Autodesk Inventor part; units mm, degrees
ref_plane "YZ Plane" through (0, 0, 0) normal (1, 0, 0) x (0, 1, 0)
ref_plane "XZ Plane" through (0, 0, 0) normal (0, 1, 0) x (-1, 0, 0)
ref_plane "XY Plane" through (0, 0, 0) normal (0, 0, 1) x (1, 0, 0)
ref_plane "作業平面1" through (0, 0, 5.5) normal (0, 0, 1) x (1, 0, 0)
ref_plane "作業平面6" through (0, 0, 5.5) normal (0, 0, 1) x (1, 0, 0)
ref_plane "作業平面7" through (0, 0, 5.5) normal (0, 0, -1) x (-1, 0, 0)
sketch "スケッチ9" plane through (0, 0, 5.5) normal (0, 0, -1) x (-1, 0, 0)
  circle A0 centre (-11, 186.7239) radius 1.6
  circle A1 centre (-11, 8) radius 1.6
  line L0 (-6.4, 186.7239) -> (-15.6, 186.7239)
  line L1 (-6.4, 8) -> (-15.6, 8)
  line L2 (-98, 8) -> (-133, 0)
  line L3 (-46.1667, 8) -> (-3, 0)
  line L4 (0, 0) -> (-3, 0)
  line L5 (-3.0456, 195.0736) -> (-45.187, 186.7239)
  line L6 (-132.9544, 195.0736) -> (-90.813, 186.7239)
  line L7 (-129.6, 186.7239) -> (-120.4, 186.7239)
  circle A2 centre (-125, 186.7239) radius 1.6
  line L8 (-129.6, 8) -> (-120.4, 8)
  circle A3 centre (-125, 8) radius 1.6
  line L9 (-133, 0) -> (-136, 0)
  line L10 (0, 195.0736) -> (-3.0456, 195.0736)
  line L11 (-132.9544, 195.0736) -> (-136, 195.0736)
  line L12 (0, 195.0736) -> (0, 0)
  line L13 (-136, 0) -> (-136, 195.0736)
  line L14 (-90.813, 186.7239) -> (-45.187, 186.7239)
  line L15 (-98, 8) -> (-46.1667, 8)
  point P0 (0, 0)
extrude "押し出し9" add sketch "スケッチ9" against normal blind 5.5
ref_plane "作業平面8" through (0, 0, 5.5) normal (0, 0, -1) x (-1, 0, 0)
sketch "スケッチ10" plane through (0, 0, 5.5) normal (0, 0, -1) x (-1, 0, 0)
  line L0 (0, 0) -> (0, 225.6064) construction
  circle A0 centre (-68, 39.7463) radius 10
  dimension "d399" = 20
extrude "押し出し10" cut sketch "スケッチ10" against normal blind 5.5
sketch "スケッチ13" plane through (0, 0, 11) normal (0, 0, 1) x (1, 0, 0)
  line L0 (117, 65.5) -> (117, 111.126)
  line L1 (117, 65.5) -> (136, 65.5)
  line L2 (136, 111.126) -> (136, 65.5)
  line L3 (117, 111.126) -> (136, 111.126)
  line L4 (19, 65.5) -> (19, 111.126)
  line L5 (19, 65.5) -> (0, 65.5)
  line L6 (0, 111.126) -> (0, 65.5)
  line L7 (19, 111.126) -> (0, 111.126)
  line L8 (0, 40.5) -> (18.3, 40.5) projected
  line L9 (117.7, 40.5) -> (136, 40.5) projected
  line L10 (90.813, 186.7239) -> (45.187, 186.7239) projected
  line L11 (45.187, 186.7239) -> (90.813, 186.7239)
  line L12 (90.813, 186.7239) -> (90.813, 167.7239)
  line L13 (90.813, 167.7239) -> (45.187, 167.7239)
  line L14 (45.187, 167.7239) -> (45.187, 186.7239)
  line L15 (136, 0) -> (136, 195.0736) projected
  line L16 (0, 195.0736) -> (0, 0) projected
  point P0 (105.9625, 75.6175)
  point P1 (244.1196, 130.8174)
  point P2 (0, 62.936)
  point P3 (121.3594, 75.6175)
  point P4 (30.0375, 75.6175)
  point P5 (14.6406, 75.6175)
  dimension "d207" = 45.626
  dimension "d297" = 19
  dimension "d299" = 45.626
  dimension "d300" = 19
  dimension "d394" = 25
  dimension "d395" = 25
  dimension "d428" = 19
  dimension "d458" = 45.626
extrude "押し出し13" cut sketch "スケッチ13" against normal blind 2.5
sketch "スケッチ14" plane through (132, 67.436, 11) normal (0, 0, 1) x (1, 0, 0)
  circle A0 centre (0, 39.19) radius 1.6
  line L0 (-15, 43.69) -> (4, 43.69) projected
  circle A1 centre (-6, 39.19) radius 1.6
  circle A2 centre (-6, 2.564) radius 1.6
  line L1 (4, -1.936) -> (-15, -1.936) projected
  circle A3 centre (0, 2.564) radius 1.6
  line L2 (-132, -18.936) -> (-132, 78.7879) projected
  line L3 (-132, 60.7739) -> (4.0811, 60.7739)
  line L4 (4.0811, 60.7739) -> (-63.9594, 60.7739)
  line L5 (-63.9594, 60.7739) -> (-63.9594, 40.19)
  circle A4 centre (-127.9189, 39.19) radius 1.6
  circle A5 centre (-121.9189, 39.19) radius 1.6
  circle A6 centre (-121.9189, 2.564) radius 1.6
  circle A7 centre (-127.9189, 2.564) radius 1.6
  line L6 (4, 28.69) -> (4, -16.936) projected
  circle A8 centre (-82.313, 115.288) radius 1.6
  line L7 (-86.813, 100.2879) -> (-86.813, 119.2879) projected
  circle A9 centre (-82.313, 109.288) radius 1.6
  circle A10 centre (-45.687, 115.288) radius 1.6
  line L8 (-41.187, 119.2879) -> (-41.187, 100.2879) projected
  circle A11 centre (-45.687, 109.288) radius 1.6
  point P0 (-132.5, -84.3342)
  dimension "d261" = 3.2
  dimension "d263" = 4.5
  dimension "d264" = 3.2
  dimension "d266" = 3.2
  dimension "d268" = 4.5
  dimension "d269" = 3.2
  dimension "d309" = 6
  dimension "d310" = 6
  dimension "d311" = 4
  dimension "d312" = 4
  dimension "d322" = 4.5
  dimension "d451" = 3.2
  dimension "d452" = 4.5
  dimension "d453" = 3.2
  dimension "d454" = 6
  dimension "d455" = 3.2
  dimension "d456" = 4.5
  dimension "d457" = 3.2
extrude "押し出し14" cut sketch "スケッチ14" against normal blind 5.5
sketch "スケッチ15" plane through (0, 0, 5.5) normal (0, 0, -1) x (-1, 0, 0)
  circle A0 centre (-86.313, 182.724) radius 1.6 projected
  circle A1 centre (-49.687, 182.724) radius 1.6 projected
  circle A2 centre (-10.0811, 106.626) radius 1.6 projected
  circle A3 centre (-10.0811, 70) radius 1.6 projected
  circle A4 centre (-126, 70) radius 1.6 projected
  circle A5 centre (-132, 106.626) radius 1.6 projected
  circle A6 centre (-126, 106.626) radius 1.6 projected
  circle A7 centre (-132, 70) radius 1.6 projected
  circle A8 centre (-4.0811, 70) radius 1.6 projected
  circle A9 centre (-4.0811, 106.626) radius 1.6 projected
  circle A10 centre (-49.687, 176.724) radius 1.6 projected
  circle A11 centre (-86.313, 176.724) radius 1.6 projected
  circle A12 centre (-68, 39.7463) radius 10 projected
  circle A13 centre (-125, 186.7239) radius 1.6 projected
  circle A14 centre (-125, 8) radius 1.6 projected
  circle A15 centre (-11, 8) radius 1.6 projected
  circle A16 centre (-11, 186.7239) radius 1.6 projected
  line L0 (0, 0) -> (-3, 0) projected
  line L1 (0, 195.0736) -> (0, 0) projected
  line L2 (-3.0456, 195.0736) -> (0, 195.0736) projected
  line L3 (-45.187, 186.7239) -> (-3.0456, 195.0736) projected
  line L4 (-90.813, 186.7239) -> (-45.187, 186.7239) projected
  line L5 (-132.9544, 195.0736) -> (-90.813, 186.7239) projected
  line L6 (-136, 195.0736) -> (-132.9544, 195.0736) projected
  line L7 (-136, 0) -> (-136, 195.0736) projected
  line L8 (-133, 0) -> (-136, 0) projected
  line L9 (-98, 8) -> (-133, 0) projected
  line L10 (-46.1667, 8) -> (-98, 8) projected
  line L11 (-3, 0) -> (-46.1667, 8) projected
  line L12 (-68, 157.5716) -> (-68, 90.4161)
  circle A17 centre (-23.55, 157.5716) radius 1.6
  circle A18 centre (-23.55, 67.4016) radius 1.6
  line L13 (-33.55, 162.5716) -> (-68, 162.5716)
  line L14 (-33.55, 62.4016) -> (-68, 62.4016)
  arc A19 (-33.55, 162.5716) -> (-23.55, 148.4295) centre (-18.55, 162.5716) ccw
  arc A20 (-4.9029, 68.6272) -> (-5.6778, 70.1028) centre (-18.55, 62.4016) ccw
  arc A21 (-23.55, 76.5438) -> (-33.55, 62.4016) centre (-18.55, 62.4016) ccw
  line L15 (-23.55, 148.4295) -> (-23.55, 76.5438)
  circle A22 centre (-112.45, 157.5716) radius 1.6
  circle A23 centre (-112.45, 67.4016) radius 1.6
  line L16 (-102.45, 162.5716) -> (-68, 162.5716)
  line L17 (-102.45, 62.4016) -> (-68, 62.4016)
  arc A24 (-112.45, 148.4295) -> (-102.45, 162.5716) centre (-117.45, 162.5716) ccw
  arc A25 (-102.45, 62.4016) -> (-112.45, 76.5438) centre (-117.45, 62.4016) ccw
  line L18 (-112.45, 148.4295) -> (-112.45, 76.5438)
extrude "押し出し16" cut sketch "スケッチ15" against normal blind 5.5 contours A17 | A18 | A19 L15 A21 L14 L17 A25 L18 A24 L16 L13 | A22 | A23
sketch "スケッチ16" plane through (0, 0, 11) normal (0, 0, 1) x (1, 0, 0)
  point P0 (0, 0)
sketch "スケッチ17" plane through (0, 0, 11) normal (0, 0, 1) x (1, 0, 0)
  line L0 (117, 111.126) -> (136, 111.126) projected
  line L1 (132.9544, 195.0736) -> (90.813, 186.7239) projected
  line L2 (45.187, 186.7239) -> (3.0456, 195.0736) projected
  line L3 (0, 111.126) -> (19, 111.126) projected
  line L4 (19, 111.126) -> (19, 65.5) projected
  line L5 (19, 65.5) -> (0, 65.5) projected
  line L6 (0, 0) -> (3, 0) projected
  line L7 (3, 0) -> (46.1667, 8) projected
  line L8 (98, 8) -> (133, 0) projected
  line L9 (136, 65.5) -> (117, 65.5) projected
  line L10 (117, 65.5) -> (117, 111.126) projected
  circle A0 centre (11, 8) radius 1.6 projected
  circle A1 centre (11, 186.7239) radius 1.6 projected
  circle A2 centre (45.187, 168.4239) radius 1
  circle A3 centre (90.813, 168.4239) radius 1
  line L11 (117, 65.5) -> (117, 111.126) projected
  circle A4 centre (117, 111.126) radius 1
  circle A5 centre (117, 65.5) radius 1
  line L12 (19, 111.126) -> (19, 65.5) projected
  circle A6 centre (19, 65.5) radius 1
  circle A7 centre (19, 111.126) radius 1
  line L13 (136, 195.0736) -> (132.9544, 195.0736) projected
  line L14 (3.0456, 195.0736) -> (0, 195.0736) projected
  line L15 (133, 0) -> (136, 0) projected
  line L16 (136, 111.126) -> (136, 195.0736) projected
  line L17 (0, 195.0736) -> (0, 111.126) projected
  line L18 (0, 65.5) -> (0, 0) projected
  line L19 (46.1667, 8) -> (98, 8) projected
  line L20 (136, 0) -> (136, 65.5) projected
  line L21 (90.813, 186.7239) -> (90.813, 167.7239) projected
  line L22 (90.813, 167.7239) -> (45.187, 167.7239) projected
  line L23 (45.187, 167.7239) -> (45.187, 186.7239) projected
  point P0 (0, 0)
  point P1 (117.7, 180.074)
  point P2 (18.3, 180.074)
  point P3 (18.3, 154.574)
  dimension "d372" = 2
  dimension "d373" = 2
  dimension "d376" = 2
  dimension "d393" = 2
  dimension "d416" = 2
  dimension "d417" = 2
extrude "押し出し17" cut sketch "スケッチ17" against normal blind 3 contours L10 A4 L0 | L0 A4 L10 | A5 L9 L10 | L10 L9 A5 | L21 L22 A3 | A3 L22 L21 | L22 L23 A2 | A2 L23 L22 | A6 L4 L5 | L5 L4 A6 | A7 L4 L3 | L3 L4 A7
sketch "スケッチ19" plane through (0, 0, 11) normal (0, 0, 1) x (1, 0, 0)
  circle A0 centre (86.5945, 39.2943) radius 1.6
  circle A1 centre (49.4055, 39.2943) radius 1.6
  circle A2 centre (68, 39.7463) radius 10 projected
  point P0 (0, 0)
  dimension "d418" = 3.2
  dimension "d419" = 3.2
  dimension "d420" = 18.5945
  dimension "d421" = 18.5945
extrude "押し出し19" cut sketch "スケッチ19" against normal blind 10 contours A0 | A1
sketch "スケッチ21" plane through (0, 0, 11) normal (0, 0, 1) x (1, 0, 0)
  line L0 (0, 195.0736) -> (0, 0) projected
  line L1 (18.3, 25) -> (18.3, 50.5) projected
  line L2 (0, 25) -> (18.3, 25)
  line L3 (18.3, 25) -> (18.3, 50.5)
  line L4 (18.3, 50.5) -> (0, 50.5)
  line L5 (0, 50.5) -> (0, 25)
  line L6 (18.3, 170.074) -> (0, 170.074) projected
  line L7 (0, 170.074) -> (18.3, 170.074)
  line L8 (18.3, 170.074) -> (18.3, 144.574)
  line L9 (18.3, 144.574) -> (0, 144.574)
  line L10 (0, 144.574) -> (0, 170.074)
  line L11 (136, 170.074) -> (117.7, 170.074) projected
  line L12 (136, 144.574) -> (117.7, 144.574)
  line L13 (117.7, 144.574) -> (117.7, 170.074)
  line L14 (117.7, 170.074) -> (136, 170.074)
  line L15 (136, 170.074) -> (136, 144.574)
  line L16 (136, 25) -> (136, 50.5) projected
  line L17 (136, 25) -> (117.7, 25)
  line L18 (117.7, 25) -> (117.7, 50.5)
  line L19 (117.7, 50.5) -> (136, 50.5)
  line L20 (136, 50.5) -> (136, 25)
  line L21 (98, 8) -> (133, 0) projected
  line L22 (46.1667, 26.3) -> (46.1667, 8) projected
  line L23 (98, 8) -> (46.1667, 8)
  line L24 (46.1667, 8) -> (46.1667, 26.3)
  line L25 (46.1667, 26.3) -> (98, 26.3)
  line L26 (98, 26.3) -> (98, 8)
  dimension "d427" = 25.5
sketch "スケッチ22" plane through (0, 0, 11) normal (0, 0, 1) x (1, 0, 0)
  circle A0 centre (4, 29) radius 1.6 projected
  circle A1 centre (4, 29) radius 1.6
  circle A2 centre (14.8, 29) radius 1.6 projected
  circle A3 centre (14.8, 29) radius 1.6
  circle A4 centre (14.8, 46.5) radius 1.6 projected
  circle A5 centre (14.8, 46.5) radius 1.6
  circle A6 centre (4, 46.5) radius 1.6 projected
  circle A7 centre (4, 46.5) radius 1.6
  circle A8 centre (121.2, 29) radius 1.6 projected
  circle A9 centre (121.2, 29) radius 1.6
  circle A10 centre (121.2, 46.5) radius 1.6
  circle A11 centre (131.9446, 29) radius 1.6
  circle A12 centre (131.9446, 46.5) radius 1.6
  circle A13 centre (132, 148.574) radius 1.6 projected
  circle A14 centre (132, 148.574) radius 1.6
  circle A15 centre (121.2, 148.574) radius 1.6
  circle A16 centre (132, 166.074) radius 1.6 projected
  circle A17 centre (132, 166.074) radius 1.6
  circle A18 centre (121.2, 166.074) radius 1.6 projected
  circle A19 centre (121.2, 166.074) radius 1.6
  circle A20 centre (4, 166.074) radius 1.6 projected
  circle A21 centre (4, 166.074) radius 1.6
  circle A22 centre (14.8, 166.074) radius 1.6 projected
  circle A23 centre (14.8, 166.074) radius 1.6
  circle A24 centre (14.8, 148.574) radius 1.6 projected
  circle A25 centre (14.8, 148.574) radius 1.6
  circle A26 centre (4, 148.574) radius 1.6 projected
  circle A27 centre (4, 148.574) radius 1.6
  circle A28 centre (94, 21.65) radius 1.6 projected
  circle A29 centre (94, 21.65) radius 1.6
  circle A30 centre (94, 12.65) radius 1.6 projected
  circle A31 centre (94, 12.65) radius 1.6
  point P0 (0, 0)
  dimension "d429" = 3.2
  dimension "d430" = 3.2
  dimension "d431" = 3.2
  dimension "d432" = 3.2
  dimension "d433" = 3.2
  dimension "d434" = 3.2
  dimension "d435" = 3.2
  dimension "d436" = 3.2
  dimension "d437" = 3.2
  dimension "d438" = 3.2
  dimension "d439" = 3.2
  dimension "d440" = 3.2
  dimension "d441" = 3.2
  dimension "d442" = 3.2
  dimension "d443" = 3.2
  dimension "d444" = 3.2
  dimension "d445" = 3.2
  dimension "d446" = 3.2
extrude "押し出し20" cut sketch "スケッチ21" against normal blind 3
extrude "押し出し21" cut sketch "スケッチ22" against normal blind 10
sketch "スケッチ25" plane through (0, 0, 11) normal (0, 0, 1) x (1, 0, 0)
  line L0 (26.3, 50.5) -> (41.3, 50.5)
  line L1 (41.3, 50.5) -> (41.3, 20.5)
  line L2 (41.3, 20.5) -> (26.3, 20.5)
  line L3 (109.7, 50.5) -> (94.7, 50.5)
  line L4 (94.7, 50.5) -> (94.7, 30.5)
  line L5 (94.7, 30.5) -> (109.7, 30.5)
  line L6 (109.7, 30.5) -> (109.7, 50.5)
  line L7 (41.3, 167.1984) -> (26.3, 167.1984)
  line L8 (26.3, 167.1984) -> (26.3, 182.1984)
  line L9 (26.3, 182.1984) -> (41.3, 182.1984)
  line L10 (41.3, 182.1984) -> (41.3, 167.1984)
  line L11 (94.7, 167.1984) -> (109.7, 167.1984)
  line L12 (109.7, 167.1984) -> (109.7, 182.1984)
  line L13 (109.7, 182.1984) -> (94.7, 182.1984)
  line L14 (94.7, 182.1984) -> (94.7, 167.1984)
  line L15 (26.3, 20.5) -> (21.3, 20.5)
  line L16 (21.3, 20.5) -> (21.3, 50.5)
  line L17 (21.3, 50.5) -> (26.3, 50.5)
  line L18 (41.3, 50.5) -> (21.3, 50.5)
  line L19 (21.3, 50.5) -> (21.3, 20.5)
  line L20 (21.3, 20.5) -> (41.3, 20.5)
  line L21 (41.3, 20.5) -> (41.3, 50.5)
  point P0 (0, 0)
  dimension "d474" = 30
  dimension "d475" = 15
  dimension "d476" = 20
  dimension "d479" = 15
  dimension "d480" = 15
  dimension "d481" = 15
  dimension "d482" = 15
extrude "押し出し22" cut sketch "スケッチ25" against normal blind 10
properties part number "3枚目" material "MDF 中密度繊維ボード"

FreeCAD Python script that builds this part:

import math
import FreeCAD as App
import Part
import Sketcher
Q = App.Units.Quantity


def add_polygon(sketch, points):
    """Adds a closed chain of lines whose ends are joined by coincident constraints."""
    first, n = sketch.GeometryCount, len(points)
    for a, b in zip(points, points[1:] + points[:1]):
        sketch.addGeometry(Part.LineSegment(App.Vector(*a, 0), App.Vector(*b, 0)), False)
    for i in range(n):
        sketch.addConstraint(Sketcher.Constraint("Coincident", first + i, 2, first + (i + 1) % n, 1))

doc = App.newDocument("Part")
body = doc.addObject("PartDesign::Body", "Body")

sketch1 = body.newObject("Sketcher::SketchObject", "Sketch")
sketch1.AttachmentSupport = (doc.getObject("XY_Plane"), [""])
sketch1.MapMode = "FlatFace"
sketch1.AttachmentOffset = App.Placement(App.Vector(0, 0, 5.5), App.Rotation())
add_polygon(sketch1, [(133, 0), (98, 8), (46.2, 8), (3, 0), (0, 0), (0, 195.1), (3, 195.1), (45.2, 186.7), (90.8, 186.7), (133, 195.1), (136, 195.1), (136, 0)])
sketch1.addGeometry(Part.Circle(App.Vector(125, 8, 0), App.Vector(0, 0, 1), 1.6), False)
sketch1.addGeometry(Part.Circle(App.Vector(11, 8, 0), App.Vector(0, 0, 1), 1.6), False)
sketch1.addGeometry(Part.Circle(App.Vector(125, 186.7, 0), App.Vector(0, 0, 1), 1.6), False)
sketch1.addGeometry(Part.Circle(App.Vector(11, 186.7, 0), App.Vector(0, 0, 1), 1.6), False)
sketch1.addConstraint([
    Sketcher.Constraint("Horizontal", 1),
    Sketcher.Constraint("Horizontal", 3),
    Sketcher.Constraint("Vertical", 4),
    Sketcher.Constraint("Horizontal", 5),
    Sketcher.Constraint("Horizontal", 7),
    Sketcher.Constraint("Horizontal", 9),
    Sketcher.Constraint("Vertical", 10),
    Sketcher.Constraint("Horizontal", 11),
    Sketcher.Constraint("Coincident", 3, 2, -1, 1),
    Sketcher.Constraint("Equal", 12, 13),
    Sketcher.Constraint("Equal", 13, 14),
    Sketcher.Constraint("Equal", 14, 15),
    Sketcher.Constraint("PointOnObject", 10, 2, -1),
    Sketcher.Constraint("Horizontal", 12, 3, 13, 3),
    Sketcher.Constraint("Horizontal", 14, 3, 15, 3),
    Sketcher.Constraint("Horizontal", 13, 3, 0, 2),
    Sketcher.Constraint("Horizontal", 15, 3, 6, 2),
    Sketcher.Constraint("Horizontal", 5, 2, 8, 2),
    Sketcher.Constraint("Vertical", 12, 3, 14, 3),
    Sketcher.Constraint("Vertical", 13, 3, 15, 3),
    Sketcher.Constraint("Equal", 5, 9),
    Sketcher.Constraint("Equal", 3, 11),
    Sketcher.Constraint("Equal", 6, 8),
    Sketcher.Constraint("Diameter", 12, Q("3.2 mm")),
    Sketcher.Constraint("DistanceX", 3, 2, 3, 1, Q("3 mm")),
    Sketcher.Constraint("DistanceX", -1, 1, 12, 3, Q("125 mm")),
    Sketcher.Constraint("DistanceY", -1, 1, 12, 3, Q("8 mm")),
    Sketcher.Constraint("DistanceX", -1, 1, 13, 3, Q("11 mm")),
    Sketcher.Constraint("DistanceX", -1, 1, 0, 2, Q("98 mm")),
    Sketcher.Constraint("DistanceX", -1, 1, 9, 2, Q("136 mm")),
    Sketcher.Constraint("Angle", 2, Q("-169.5006 deg")),
    Sketcher.Constraint("DistanceX", 7, 1, 7, 2, Q("45.626 mm")),
    Sketcher.Constraint("DistanceX", 5, 1, 5, 2, Q("3.0456 mm")),
    Sketcher.Constraint("DistanceY", 4, 1, 4, 2, Q("195.0736 mm")),
    Sketcher.Constraint("DistanceY", -1, 1, 14, 3, Q("186.724 mm")),
])
pad1 = body.newObject("PartDesign::Pad", "Pad")
pad1.Profile = sketch1
pad1.Length = 5.5

sketch2 = body.newObject("Sketcher::SketchObject", "Sketch001")
sketch2.AttachmentSupport = (doc.getObject("XY_Plane"), [""])
sketch2.MapMode = "FlatFace"
sketch2.AttachmentOffset = App.Placement(App.Vector(0, 0, 5.5), App.Rotation())
sketch2.addGeometry(Part.Circle(App.Vector(68, 40, 0), App.Vector(0, 0, 1), 10), False)
sketch2.addConstraint([
    Sketcher.Constraint("Diameter", 0, Q("20 mm")),
    Sketcher.Constraint("DistanceX", -1, 1, 0, 3, Q("68 mm")),
    Sketcher.Constraint("DistanceY", -1, 1, 0, 3, Q("39.7463 mm")),
])
pocket1 = body.newObject("PartDesign::Pocket", "Pocket")
pocket1.Profile = sketch2
pocket1.Length = 5.5
pocket1.Reversed = True

sketch3 = body.newObject("Sketcher::SketchObject", "Sketch002")
sketch3.AttachmentSupport = (doc.getObject("XY_Plane"), [""])
sketch3.MapMode = "FlatFace"
sketch3.AttachmentOffset = App.Placement(App.Vector(0, 0, 11), App.Rotation())
add_polygon(sketch3, [(117, 111), (117, 66), (136, 66), (136, 111)])
add_polygon(sketch3, [(0, 66), (19, 66), (19, 111), (0, 111)])
add_polygon(sketch3, [(91, 168), (91, 187), (45, 187), (45, 168)])
sketch3.addConstraint([
    Sketcher.Constraint("Vertical", 0),
    Sketcher.Constraint("Horizontal", 1),
    Sketcher.Constraint("Vertical", 2),
    Sketcher.Constraint("Horizontal", 3),
    Sketcher.Constraint("Horizontal", 4),
    Sketcher.Constraint("Vertical", 5),
    Sketcher.Constraint("Horizontal", 6),
    Sketcher.Constraint("Vertical", 7),
    Sketcher.Constraint("Vertical", 8),
    Sketcher.Constraint("Horizontal", 9),
    Sketcher.Constraint("Vertical", 10),
    Sketcher.Constraint("Horizontal", 11),
    Sketcher.Constraint("PointOnObject", 6, 2, -2),
    Sketcher.Constraint("Horizontal", 1, 2, 4, 2),
    Sketcher.Constraint("Horizontal", 3, 2, 5, 2),
    Sketcher.Constraint("Equal", 3, 4),
    Sketcher.Constraint("Equal", 11, 0),
    Sketcher.Constraint("Equal", 6, 8),
    Sketcher.Constraint("DistanceX", 1, 1, 1, 2, Q("19 mm")),
    Sketcher.Constraint("DistanceX", 9, 2, 9, 1, Q("45.626 mm")),
    Sketcher.Constraint("DistanceX", -1, 1, 0, 2, Q("117 mm")),
    Sketcher.Constraint("DistanceY", -1, 1, 0, 2, Q("65.5 mm")),
    Sketcher.Constraint("DistanceX", -1, 1, 8, 2, Q("90.813 mm")),
    Sketcher.Constraint("DistanceY", -1, 1, 8, 2, Q("186.724 mm")),
])
pocket2 = body.newObject("PartDesign::Pocket", "Pocket001")
pocket2.Profile = sketch3
pocket2.Length = 2.5

sketch4 = body.newObject("Sketcher::SketchObject", "Sketch003")
sketch4.AttachmentSupport = (doc.getObject("XY_Plane"), [""])
sketch4.MapMode = "FlatFace"
sketch4.AttachmentOffset = App.Placement(App.Vector(0, 0, 11), App.Rotation())
sketch4.addGeometry([
    Part.Circle(App.Vector(132, 106.6, 0), App.Vector(0, 0, 1), 1.6),
    Part.Circle(App.Vector(126, 106.6, 0), App.Vector(0, 0, 1), 1.6),
    Part.Circle(App.Vector(126, 70, 0), App.Vector(0, 0, 1), 1.6),
    Part.Circle(App.Vector(132, 70, 0), App.Vector(0, 0, 1), 1.6),
    Part.Circle(App.Vector(4.1, 106.6, 0), App.Vector(0, 0, 1), 1.6),
    Part.Circle(App.Vector(10.1, 106.6, 0), App.Vector(0, 0, 1), 1.6),
    Part.Circle(App.Vector(10.1, 70, 0), App.Vector(0, 0, 1), 1.6),
    Part.Circle(App.Vector(4.1, 70, 0), App.Vector(0, 0, 1), 1.6),
    Part.Circle(App.Vector(49.7, 182.7, 0), App.Vector(0, 0, 1), 1.6),
    Part.Circle(App.Vector(49.7, 176.7, 0), App.Vector(0, 0, 1), 1.6),
    Part.Circle(App.Vector(86.3, 182.7, 0), App.Vector(0, 0, 1), 1.6),
    Part.Circle(App.Vector(86.3, 176.7, 0), App.Vector(0, 0, 1), 1.6),
], False)
sketch4.addConstraint([
    Sketcher.Constraint("Equal", 0, 1),
    Sketcher.Constraint("Equal", 1, 2),
    Sketcher.Constraint("Equal", 2, 3),
    Sketcher.Constraint("Equal", 3, 4),
    Sketcher.Constraint("Equal", 4, 5),
    Sketcher.Constraint("Equal", 5, 6),
    Sketcher.Constraint("Equal", 6, 7),
    Sketcher.Constraint("Equal", 7, 8),
    Sketcher.Constraint("Equal", 8, 9),
    Sketcher.Constraint("Equal", 9, 10),
    Sketcher.Constraint("Equal", 10, 11),
    Sketcher.Constraint("Horizontal", 0, 3, 1, 3),
    Sketcher.Constraint("Horizontal", 2, 3, 3, 3),
    Sketcher.Constraint("Horizontal", 1, 3, 4, 3),
    Sketcher.Constraint("Horizontal", 4, 3, 5, 3),
    Sketcher.Constraint("Horizontal", 3, 3, 6, 3),
    Sketcher.Constraint("Horizontal", 6, 3, 7, 3),
    Sketcher.Constraint("Horizontal", 8, 3, 10, 3),
    Sketcher.Constraint("Horizontal", 9, 3, 11, 3),
    Sketcher.Constraint("Vertical", 1, 3, 2, 3),
    Sketcher.Constraint("Vertical", 0, 3, 3, 3),
    Sketcher.Constraint("Vertical", 5, 3, 6, 3),
    Sketcher.Constraint("Vertical", 4, 3, 7, 3),
    Sketcher.Constraint("Vertical", 8, 3, 9, 3),
    Sketcher.Constraint("Vertical", 10, 3, 11, 3),
    Sketcher.Constraint("Diameter", 0, Q("3.2 mm")),
    Sketcher.Constraint("DistanceX", 1, 3, 0, 3, Q("6 mm")),
    Sketcher.Constraint("DistanceX", 4, 3, 5, 3, Q("6 mm")),
    Sketcher.Constraint("DistanceY", 9, 3, 8, 3, Q("6 mm")),
    Sketcher.Constraint("DistanceX", -1, 1, 0, 3, Q("132 mm")),
    Sketcher.Constraint("DistanceY", -1, 1, 2, 3, Q("70 mm")),
    Sketcher.Constraint("DistanceY", -1, 1, 0, 3, Q("106.626 mm")),
    Sketcher.Constraint("DistanceX", -1, 1, 4, 3, Q("4.081 mm")),
    Sketcher.Constraint("DistanceX", -1, 1, 8, 3, Q("49.687 mm")),
    Sketcher.Constraint("DistanceY", -1, 1, 8, 3, Q("182.724 mm")),
    Sketcher.Constraint("DistanceX", -1, 1, 10, 3, Q("86.313 mm")),
])
pocket3 = body.newObject("PartDesign::Pocket", "Pocket002")
pocket3.Profile = sketch4
pocket3.Length = 5.5

sketch5 = body.newObject("Sketcher::SketchObject", "Sketch004")
sketch5.AttachmentSupport = (doc.getObject("XY_Plane"), [""])
sketch5.MapMode = "FlatFace"
sketch5.AttachmentOffset = App.Placement(App.Vector(0, 0, 5.5), App.Rotation())
sketch5.addGeometry([
    Part.Circle(App.Vector(23.6, 157.6, 0), App.Vector(0, 0, 1), 1.6),
    Part.Circle(App.Vector(23.6, 67.4, 0), App.Vector(0, 0, 1), 1.6),
    Part.ArcOfCircle(Part.Circle(App.Vector(18.6, 162.6, 0), App.Vector(0, 0, 1), 15), math.radians(-71), math.radians(0)),
    Part.LineSegment(App.Vector(33.5, 162.6, 0), App.Vector(102.5, 162.6, 0)),
    Part.ArcOfCircle(Part.Circle(App.Vector(117.5, 162.6, 0), App.Vector(0, 0, 1), 15), math.radians(180), math.radians(251)),
    Part.LineSegment(App.Vector(112.5, 148.4, 0), App.Vector(112.5, 76.5, 0)),
    Part.ArcOfCircle(Part.Circle(App.Vector(117.5, 62.4, 0), App.Vector(0, 0, 1), 15), math.radians(109), math.radians(180)),
    Part.LineSegment(App.Vector(102.5, 62.4, 0), App.Vector(33.5, 62.4, 0)),
    Part.ArcOfCircle(Part.Circle(App.Vector(18.6, 62.4, 0), App.Vector(0, 0, 1), 15), math.radians(0), math.radians(71)),
    Part.LineSegment(App.Vector(23.6, 76.5, 0), App.Vector(23.6, 148.4, 0)),
    Part.Circle(App.Vector(112.5, 157.6, 0), App.Vector(0, 0, 1), 1.6),
    Part.Circle(App.Vector(112.5, 67.4, 0), App.Vector(0, 0, 1), 1.6),
], False)
sketch5.addConstraint([
    Sketcher.Constraint("Coincident", 2, 2, 3, 1),
    Sketcher.Constraint("Coincident", 3, 2, 4, 1),
    Sketcher.Constraint("Coincident", 4, 2, 5, 1),
    Sketcher.Constraint("Coincident", 5, 2, 6, 1),
    Sketcher.Constraint("Coincident", 6, 2, 7, 1),
    Sketcher.Constraint("Coincident", 7, 2, 8, 1),
    Sketcher.Constraint("Coincident", 8, 2, 9, 1),
    Sketcher.Constraint("Coincident", 9, 2, 2, 1),
    Sketcher.Constraint("Horizontal", 3),
    Sketcher.Constraint("Vertical", 5),
    Sketcher.Constraint("Horizontal", 7),
    Sketcher.Constraint("Vertical", 9),
    Sketcher.Constraint("Equal", 0, 1),
    Sketcher.Constraint("Equal", 2, 4),
    Sketcher.Constraint("Equal", 4, 6),
    Sketcher.Constraint("Equal", 6, 8),
    Sketcher.Constraint("Equal", 1, 10),
    Sketcher.Constraint("Equal", 10, 11),
    Sketcher.Constraint("Horizontal", 2, 3, 4, 3),
    Sketcher.Constraint("Horizontal", 6, 3, 8, 3),
    Sketcher.Constraint("Horizontal", 0, 3, 10, 3),
    Sketcher.Constraint("Horizontal", 1, 3, 11, 3),
    Sketcher.Constraint("Horizontal", 4, 3, 2, 2),
    Sketcher.Constraint("Horizontal", 8, 3, 6, 2),
    Sketcher.Constraint("Horizontal", 5, 2, 8, 2),
    Sketcher.Constraint("Horizontal", 4, 2, 9, 2),
    Sketcher.Constraint("Vertical", 0, 3, 1, 3),
    Sketcher.Constraint("Vertical", 4, 3, 6, 3),
    Sketcher.Constraint("Vertical", 10, 3, 11, 3),
    Sketcher.Constraint("Vertical", 11, 3, 4, 2),
    Sketcher.Constraint("Vertical", 1, 3, 8, 2),
    Sketcher.Constraint("Radius", 2, Q("15 mm")),
    Sketcher.Constraint("Diameter", 0, Q("3.2 mm")),
    Sketcher.Constraint("DistanceX", 3, 1, 3, 2, Q("68.9 mm")),
    Sketcher.Constraint("DistanceX", 2, 3, 0, 3, Q("5 mm")),
    Sketcher.Constraint("DistanceY", 0, 3, 2, 3, Q("5 mm")),
    Sketcher.Constraint("DistanceY", 6, 3, 1, 3, Q("5 mm")),
    Sketcher.Constraint("DistanceX", -1, 1, 0, 3, Q("23.55 mm")),
    Sketcher.Constraint("DistanceY", 1, 3, 0, 3, Q("90.17 mm")),
    Sketcher.Constraint("DistanceY", -1, 1, 0, 3, Q("157.5716 mm")),
])
pocket4 = body.newObject("PartDesign::Pocket", "Pocket003")
pocket4.Profile = sketch5
pocket4.Length = 5.5
pocket4.Reversed = True

sketch6 = body.newObject("Sketcher::SketchObject", "Sketch005")
sketch6.AttachmentSupport = (doc.getObject("XY_Plane"), [""])
sketch6.MapMode = "FlatFace"
sketch6.AttachmentOffset = App.Placement(App.Vector(0, 0, 11), App.Rotation())
sketch6.addGeometry([
    Part.Circle(App.Vector(117, 111.1, 0), App.Vector(0, 0, 1), 1),
    Part.Circle(App.Vector(117, 65.5, 0), App.Vector(0, 0, 1), 1),
    Part.Circle(App.Vector(90.8, 168.4, 0), App.Vector(0, 0, 1), 1),
    Part.Circle(App.Vector(45.2, 168.4, 0), App.Vector(0, 0, 1), 1),
    Part.Circle(App.Vector(19, 65.5, 0), App.Vector(0, 0, 1), 1),
    Part.Circle(App.Vector(19, 111.1, 0), App.Vector(0, 0, 1), 1),
], False)
sketch6.addConstraint([
    Sketcher.Constraint("Equal", 0, 1),
    Sketcher.Constraint("Equal", 1, 2),
    Sketcher.Constraint("Equal", 2, 3),
    Sketcher.Constraint("Equal", 3, 4),
    Sketcher.Constraint("Equal", 4, 5),
    Sketcher.Constraint("Horizontal", 2, 3, 3, 3),
    Sketcher.Constraint("Horizontal", 1, 3, 4, 3),
    Sketcher.Constraint("Horizontal", 0, 3, 5, 3),
    Sketcher.Constraint("Vertical", 0, 3, 1, 3),
    Sketcher.Constraint("Vertical", 4, 3, 5, 3),
    Sketcher.Constraint("Diameter", 0, Q("2 mm")),
    Sketcher.Constraint("DistanceX", -1, 1, 0, 3, Q("117 mm")),
    Sketcher.Constraint("DistanceX", -1, 1, 4, 3, Q("19 mm")),
    Sketcher.Constraint("DistanceY", -1, 1, 1, 3, Q("65.5 mm")),
    Sketcher.Constraint("DistanceY", -1, 1, 0, 3, Q("111.126 mm")),
    Sketcher.Constraint("DistanceX", -1, 1, 2, 3, Q("90.813 mm")),
    Sketcher.Constraint("DistanceY", -1, 1, 2, 3, Q("168.424 mm")),
    Sketcher.Constraint("DistanceX", -1, 1, 3, 3, Q("45.187 mm")),
])
pocket5 = body.newObject("PartDesign::Pocket", "Pocket004")
pocket5.Profile = sketch6
pocket5.Length = 3

sketch7 = body.newObject("Sketcher::SketchObject", "Sketch006")
sketch7.AttachmentSupport = (doc.getObject("XY_Plane"), [""])
sketch7.MapMode = "FlatFace"
sketch7.AttachmentOffset = App.Placement(App.Vector(0, 0, 11), App.Rotation())
sketch7.addGeometry([
    Part.Circle(App.Vector(86.6, 39.3, 0), App.Vector(0, 0, 1), 1.6),
    Part.Circle(App.Vector(49.4, 39.3, 0), App.Vector(0, 0, 1), 1.6),
], False)
sketch7.addConstraint([
    Sketcher.Constraint("Equal", 0, 1),
    Sketcher.Constraint("Horizontal", 0, 3, 1, 3),
    Sketcher.Constraint("Diameter", 0, Q("3.2 mm")),
    Sketcher.Constraint("DistanceX", 1, 3, 0, 3, Q("37.189 mm")),
    Sketcher.Constraint("DistanceX", -1, 1, 0, 3, Q("86.5945 mm")),
    Sketcher.Constraint("DistanceY", -1, 1, 0, 3, Q("39.2943 mm")),
])
pocket6 = body.newObject("PartDesign::Pocket", "Pocket005")
pocket6.Profile = sketch7
pocket6.Length = 10

sketch8 = body.newObject("Sketcher::SketchObject", "Sketch007")
sketch8.AttachmentSupport = (doc.getObject("XY_Plane"), [""])
sketch8.MapMode = "FlatFace"
sketch8.AttachmentOffset = App.Placement(App.Vector(0, 0, 11), App.Rotation())
add_polygon(sketch8, [(18, 170), (0, 170), (0, 145), (18, 145)])
add_polygon(sketch8, [(18, 50), (0, 50), (0, 25), (18, 25)])
add_polygon(sketch8, [(136, 145), (136, 170), (118, 170), (118, 145)])
add_polygon(sketch8, [(118, 25), (136, 25), (136, 50), (118, 50)])
add_polygon(sketch8, [(98, 26), (46, 26), (46, 8), (98, 8)])
sketch8.addConstraint([
    Sketcher.Constraint("Horizontal", 0),
    Sketcher.Constraint("Vertical", 1),
    Sketcher.Constraint("Horizontal", 2),
    Sketcher.Constraint("Vertical", 3),
    Sketcher.Constraint("Horizontal", 4),
    Sketcher.Constraint("Vertical", 5),
    Sketcher.Constraint("Horizontal", 6),
    Sketcher.Constraint("Vertical", 7),
    Sketcher.Constraint("Vertical", 8),
    Sketcher.Constraint("Horizontal", 9),
    Sketcher.Constraint("Vertical", 10),
    Sketcher.Constraint("Horizontal", 11),
    Sketcher.Constraint("Horizontal", 12),
    Sketcher.Constraint("Vertical", 13),
    Sketcher.Constraint("Horizontal", 14),
    Sketcher.Constraint("Vertical", 15),
    Sketcher.Constraint("Horizontal", 16),
    Sketcher.Constraint("Vertical", 17),
    Sketcher.Constraint("Horizontal", 18),
    Sketcher.Constraint("Vertical", 19),
    Sketcher.Constraint("PointOnObject", 0, 2, -2),
    Sketcher.Constraint("PointOnObject", 4, 2, -2),
    Sketcher.Constraint("Horizontal", 3, 2, 8, 2),
    Sketcher.Constraint("Horizontal", 2, 2, 10, 2),
    Sketcher.Constraint("Horizontal", 6, 2, 12, 2),
    Sketcher.Constraint("Horizontal", 7, 2, 13, 2),
    Sketcher.Constraint("Vertical", 3, 2, 6, 2),
    Sketcher.Constraint("Vertical", 11, 2, 12, 2),
    Sketcher.Constraint("Vertical", 10, 2, 14, 2),
    Sketcher.Constraint("Equal", 6, 9),
    Sketcher.Constraint("Equal", 3, 5),
    Sketcher.Constraint("Equal", 14, 17),
    Sketcher.Constraint("DistanceY", 1, 2, 1, 1, Q("25.5 mm")),
    Sketcher.Constraint("DistanceX", 0, 2, 0, 1, Q("18.3 mm")),
    Sketcher.Constraint("DistanceY", -1, 1, 5, 2, Q("25 mm")),
    Sketcher.Constraint("DistanceX", -1, 1, 8, 2, Q("136 mm")),
    Sketcher.Constraint("DistanceY", -1, 1, 17, 2, Q("8 mm")),
    Sketcher.Constraint("DistanceX", -1, 1, 18, 2, Q("98 mm")),
    Sketcher.Constraint("DistanceX", 16, 2, 16, 1, Q("51.8333 mm")),
    Sketcher.Constraint("DistanceY", -1, 1, 0, 2, Q("170.074 mm")),
])
pocket7 = body.newObject("PartDesign::Pocket", "Pocket006")
pocket7.Profile = sketch8
pocket7.Length = 3

sketch9 = body.newObject("Sketcher::SketchObject", "Sketch008")
sketch9.AttachmentSupport = (doc.getObject("XY_Plane"), [""])
sketch9.MapMode = "FlatFace"
sketch9.AttachmentOffset = App.Placement(App.Vector(0, 0, 11), App.Rotation())
sketch9.addGeometry([
    Part.Circle(App.Vector(4, 29, 0), App.Vector(0, 0, 1), 1.6),
    Part.Circle(App.Vector(14.8, 29, 0), App.Vector(0, 0, 1), 1.6),
    Part.Circle(App.Vector(14.8, 46.5, 0), App.Vector(0, 0, 1), 1.6),
    Part.Circle(App.Vector(4, 46.5, 0), App.Vector(0, 0, 1), 1.6),
    Part.Circle(App.Vector(121.2, 29, 0), App.Vector(0, 0, 1), 1.6),
    Part.Circle(App.Vector(121.2, 46.5, 0), App.Vector(0, 0, 1), 1.6),
    Part.Circle(App.Vector(131.9, 29, 0), App.Vector(0, 0, 1), 1.6),
    Part.Circle(App.Vector(131.9, 46.5, 0), App.Vector(0, 0, 1), 1.6),
    Part.Circle(App.Vector(132, 148.6, 0), App.Vector(0, 0, 1), 1.6),
    Part.Circle(App.Vector(121.2, 148.6, 0), App.Vector(0, 0, 1), 1.6),
    Part.Circle(App.Vector(132, 166.1, 0), App.Vector(0, 0, 1), 1.6),
    Part.Circle(App.Vector(121.2, 166.1, 0), App.Vector(0, 0, 1), 1.6),
    Part.Circle(App.Vector(4, 166.1, 0), App.Vector(0, 0, 1), 1.6),
    Part.Circle(App.Vector(14.8, 166.1, 0), App.Vector(0, 0, 1), 1.6),
    Part.Circle(App.Vector(14.8, 148.6, 0), App.Vector(0, 0, 1), 1.6),
    Part.Circle(App.Vector(4, 148.6, 0), App.Vector(0, 0, 1), 1.6),
    Part.Circle(App.Vector(94, 21.6, 0), App.Vector(0, 0, 1), 1.6),
    Part.Circle(App.Vector(94, 12.7, 0), App.Vector(0, 0, 1), 1.6),
], False)
sketch9.addConstraint([
    Sketcher.Constraint("Equal", 0, 1),
    Sketcher.Constraint("Equal", 1, 2),
    Sketcher.Constraint("Equal", 2, 3),
    Sketcher.Constraint("Equal", 3, 4),
    Sketcher.Constraint("Equal", 4, 5),
    Sketcher.Constraint("Equal", 5, 6),
    Sketcher.Constraint("Equal", 6, 7),
    Sketcher.Constraint("Equal", 7, 8),
    Sketcher.Constraint("Equal", 8, 9),
    Sketcher.Constraint("Equal", 9, 10),
    Sketcher.Constraint("Equal", 10, 11),
    Sketcher.Constraint("Equal", 11, 12),
    Sketcher.Constraint("Equal", 12, 13),
    Sketcher.Constraint("Equal", 13, 14),
    Sketcher.Constraint("Equal", 14, 15),
    Sketcher.Constraint("Equal", 15, 16),
    Sketcher.Constraint("Equal", 16, 17),
    Sketcher.Constraint("Horizontal", 0, 3, 1, 3),
    Sketcher.Constraint("Horizontal", 2, 3, 3, 3),
    Sketcher.Constraint("Horizontal", 1, 3, 4, 3),
    Sketcher.Constraint("Horizontal", 3, 3, 5, 3),
    Sketcher.Constraint("Horizontal", 4, 3, 6, 3),
    Sketcher.Constraint("Horizontal", 5, 3, 7, 3),
    Sketcher.Constraint("Horizontal", 8, 3, 9, 3),
    Sketcher.Constraint("Horizontal", 10, 3, 11, 3),
    Sketcher.Constraint("Horizontal", 11, 3, 12, 3),
    Sketcher.Constraint("Horizontal", 12, 3, 13, 3),
    Sketcher.Constraint("Horizontal", 9, 3, 14, 3),
    Sketcher.Constraint("Horizontal", 14, 3, 15, 3),
    Sketcher.Constraint("Vertical", 1, 3, 2, 3),
    Sketcher.Constraint("Vertical", 0, 3, 3, 3),
    Sketcher.Constraint("Vertical", 4, 3, 5, 3),
    Sketcher.Constraint("Vertical", 6, 3, 7, 3),
    Sketcher.Constraint("Vertical", 5, 3, 9, 3),
    Sketcher.Constraint("Vertical", 8, 3, 10, 3),
    Sketcher.Constraint("Vertical", 9, 3, 11, 3),
    Sketcher.Constraint("Vertical", 3, 3, 12, 3),
    Sketcher.Constraint("Vertical", 2, 3, 13, 3),
    Sketcher.Constraint("Vertical", 13, 3, 14, 3),
    Sketcher.Constraint("Vertical", 12, 3, 15, 3),
    Sketcher.Constraint("Vertical", 16, 3, 17, 3),
    Sketcher.Constraint("Diameter", 0, Q("3.2 mm")),
    Sketcher.Constraint("DistanceX", -1, 1, 0, 3, Q("4 mm")),
    Sketcher.Constraint("DistanceY", -1, 1, 0, 3, Q("29 mm")),
    Sketcher.Constraint("DistanceX", -1, 1, 8, 3, Q("132 mm")),
    Sketcher.Constraint("DistanceX", -1, 1, 16, 3, Q("94 mm")),
    Sketcher.Constraint("DistanceY", 17, 3, 16, 3, Q("9 mm")),
    Sketcher.Constraint("DistanceX", -1, 1, 1, 3, Q("14.8 mm")),
    Sketcher.Constraint("DistanceY", -1, 1, 2, 3, Q("46.5 mm")),
    Sketcher.Constraint("DistanceX", -1, 1, 4, 3, Q("121.2 mm")),
    Sketcher.Constraint("DistanceY", 8, 3, 10, 3, Q("17.5 mm")),
    Sketcher.Constraint("DistanceY", -1, 1, 16, 3, Q("21.65 mm")),
    Sketcher.Constraint("DistanceY", -1, 1, 8, 3, Q("148.574 mm")),
    Sketcher.Constraint("DistanceX", -1, 1, 6, 3, Q("131.9446 mm")),
])
pocket8 = body.newObject("PartDesign::Pocket", "Pocket007")
pocket8.Profile = sketch9
pocket8.Length = 10

sketch10 = body.newObject("Sketcher::SketchObject", "Sketch009")
sketch10.AttachmentSupport = (doc.getObject("XY_Plane"), [""])
sketch10.MapMode = "FlatFace"
sketch10.AttachmentOffset = App.Placement(App.Vector(0, 0, 11), App.Rotation())
add_polygon(sketch10, [(41, 50), (21, 50), (21, 20), (41, 20)])
add_polygon(sketch10, [(110, 30), (110, 50), (95, 50), (95, 30)])
add_polygon(sketch10, [(26, 167), (41, 167), (41, 182), (26, 182)])
add_polygon(sketch10, [(95, 182), (95, 167), (110, 167), (110, 182)])
sketch10.addConstraint([
    Sketcher.Constraint("Horizontal", 0),
    Sketcher.Constraint("Vertical", 1),
    Sketcher.Constraint("Horizontal", 2),
    Sketcher.Constraint("Vertical", 3),
    Sketcher.Constraint("Vertical", 4),
    Sketcher.Constraint("Horizontal", 5),
    Sketcher.Constraint("Vertical", 6),
    Sketcher.Constraint("Horizontal", 7),
    Sketcher.Constraint("Horizontal", 8),
    Sketcher.Constraint("Vertical", 9),
    Sketcher.Constraint("Horizontal", 10),
    Sketcher.Constraint("Vertical", 11),
    Sketcher.Constraint("Vertical", 12),
    Sketcher.Constraint("Horizontal", 13),
    Sketcher.Constraint("Vertical", 14),
    Sketcher.Constraint("Horizontal", 15),
    Sketcher.Constraint("Horizontal", 3, 2, 4, 2),
    Sketcher.Constraint("Horizontal", 11, 2, 12, 2),
    Sketcher.Constraint("Horizontal", 10, 2, 14, 2),
    Sketcher.Constraint("Vertical", 3, 2, 8, 2),
    Sketcher.Constraint("Vertical", 6, 2, 12, 2),
    Sketcher.Constraint("Vertical", 7, 2, 13, 2),
    Sketcher.Constraint("Equal", 7, 8),
    Sketcher.Constraint("Equal", 2, 4),
    Sketcher.Constraint("Equal", 15, 9),
    Sketcher.Constraint("DistanceX", 0, 2, 0, 1, Q("20 mm")),
    Sketcher.Constraint("DistanceX", 5, 2, 5, 1, Q("15 mm")),
    Sketcher.Constraint("DistanceY", 1, 2, 1, 1, Q("30 mm")),
    Sketcher.Constraint("DistanceX", -1, 1, 0, 2, Q("21.3 mm")),
    Sketcher.Constraint("DistanceY", -1, 1, 0, 2, Q("50.5 mm")),
    Sketcher.Constraint("DistanceX", -1, 1, 4, 2, Q("109.7 mm")),
    Sketcher.Constraint("DistanceY", -1, 1, 8, 2, Q("167.1984 mm")),
])
pocket9 = body.newObject("PartDesign::Pocket", "Pocket008")
pocket9.Profile = sketch10
pocket9.Length = 10

doc.recompute()
